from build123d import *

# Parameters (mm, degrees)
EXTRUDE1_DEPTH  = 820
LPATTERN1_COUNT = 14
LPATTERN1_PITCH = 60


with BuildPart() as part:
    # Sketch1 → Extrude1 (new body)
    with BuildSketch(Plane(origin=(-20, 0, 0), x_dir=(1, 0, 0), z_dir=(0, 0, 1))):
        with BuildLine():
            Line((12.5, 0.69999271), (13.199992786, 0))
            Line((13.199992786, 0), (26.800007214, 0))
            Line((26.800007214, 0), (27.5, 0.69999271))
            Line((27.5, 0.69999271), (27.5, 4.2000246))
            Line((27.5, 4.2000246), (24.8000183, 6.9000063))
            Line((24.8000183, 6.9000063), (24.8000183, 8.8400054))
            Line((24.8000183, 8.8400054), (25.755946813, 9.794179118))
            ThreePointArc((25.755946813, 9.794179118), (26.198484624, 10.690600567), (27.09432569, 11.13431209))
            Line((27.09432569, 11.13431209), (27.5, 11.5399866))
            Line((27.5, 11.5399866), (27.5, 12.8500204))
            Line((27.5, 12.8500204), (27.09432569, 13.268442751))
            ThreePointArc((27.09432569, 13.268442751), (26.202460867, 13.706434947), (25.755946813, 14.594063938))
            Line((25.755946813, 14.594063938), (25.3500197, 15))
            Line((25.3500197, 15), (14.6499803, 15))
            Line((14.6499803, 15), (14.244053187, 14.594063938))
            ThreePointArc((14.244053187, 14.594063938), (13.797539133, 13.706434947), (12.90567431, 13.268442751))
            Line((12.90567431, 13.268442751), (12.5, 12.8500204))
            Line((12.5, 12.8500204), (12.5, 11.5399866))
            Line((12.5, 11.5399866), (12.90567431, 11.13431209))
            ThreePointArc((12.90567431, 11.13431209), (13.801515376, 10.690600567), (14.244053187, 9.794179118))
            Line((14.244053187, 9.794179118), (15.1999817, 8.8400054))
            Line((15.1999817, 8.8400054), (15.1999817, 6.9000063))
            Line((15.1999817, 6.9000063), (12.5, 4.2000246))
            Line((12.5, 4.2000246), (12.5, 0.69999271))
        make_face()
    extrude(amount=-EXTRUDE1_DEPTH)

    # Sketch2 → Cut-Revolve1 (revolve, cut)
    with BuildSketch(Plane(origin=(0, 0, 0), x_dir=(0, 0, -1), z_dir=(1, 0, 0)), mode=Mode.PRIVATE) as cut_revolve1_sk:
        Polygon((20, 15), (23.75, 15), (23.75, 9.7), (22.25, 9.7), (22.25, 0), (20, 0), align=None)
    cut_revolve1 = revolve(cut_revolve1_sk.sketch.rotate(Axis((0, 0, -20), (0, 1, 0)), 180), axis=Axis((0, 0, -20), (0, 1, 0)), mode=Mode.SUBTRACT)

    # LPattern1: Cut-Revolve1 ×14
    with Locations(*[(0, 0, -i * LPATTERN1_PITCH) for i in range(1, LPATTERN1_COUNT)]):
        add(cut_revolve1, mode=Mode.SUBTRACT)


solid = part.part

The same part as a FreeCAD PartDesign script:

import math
import FreeCAD as App
import Part
import Sketcher
from FreeCAD import Vector


def add_polygon(sketch, points):
    """Adds a closed chain of lines whose ends are joined by coincident constraints."""
    first, n = sketch.GeometryCount, len(points)
    for a, b in zip(points, points[1:] + points[:1]):
        sketch.addGeometry(Part.LineSegment(App.Vector(*a, 0), App.Vector(*b, 0)), False)
    for i in range(n):
        sketch.addConstraint(Sketcher.Constraint("Coincident", first + i, 2, first + (i + 1) % n, 1))

doc = App.newDocument("Part")
body = doc.addObject("PartDesign::Body", "Body")

sketch1 = doc.addObject("Sketcher::SketchObject", "Sketch")
body.addObject(sketch1)
sketch1.AttachmentSupport = (doc.XY_Plane, [""])
sketch1.MapMode = "FlatFace"
sketch1.addGeometry([
    Part.LineSegment(Vector(-7.5, 0.699993, 0), Vector(-6.800007, 0, 0)),
    Part.LineSegment(Vector(-6.800007, 0, 0), Vector(6.800007, 0, 0)),
    Part.LineSegment(Vector(6.800007, 0, 0), Vector(7.5, 0.699993, 0)),
    Part.LineSegment(Vector(7.5, 0.699993, 0), Vector(7.5, 4.200025, 0)),
    Part.LineSegment(Vector(7.5, 4.200025, 0), Vector(4.800018, 6.900006, 0)),
    Part.LineSegment(Vector(4.800018, 6.900006, 0), Vector(4.800018, 8.840005, 0)),
    Part.LineSegment(Vector(4.800018, 8.840005, 0), Vector(5.755947, 9.794179, 0)),
    Part.ArcOfCircle(Part.Circle(Vector(7.302293, 9.588237, 0), Vector(0, 0, 1), 1.56), math.radians(97.661055), math.radians(172.413988)),
    Part.LineSegment(Vector(7.094326, 11.134312, 0), Vector(7.5, 11.539987, 0)),
    Part.LineSegment(Vector(7.5, 11.539987, 0), Vector(7.5, 12.85002, 0)),
    Part.LineSegment(Vector(7.5, 12.85002, 0), Vector(7.094326, 13.268443, 0)),
    Part.ArcOfCircle(Part.Circle(Vector(7.300252, 14.814791, 0), Vector(0, 0, 1), 1.56), math.radians(-171.865813), math.radians(-97.585421)),
    Part.LineSegment(Vector(5.755947, 14.594064, 0), Vector(5.35002, 15, 0)),
    Part.LineSegment(Vector(5.35002, 15, 0), Vector(-5.35002, 15, 0)),
    Part.LineSegment(Vector(-5.35002, 15, 0), Vector(-5.755947, 14.594064, 0)),
    Part.ArcOfCircle(Part.Circle(Vector(-7.300252, 14.814791, 0), Vector(0, 0, 1), 1.56), math.radians(-82.414579), math.radians(-8.134187)),
    Part.LineSegment(Vector(-7.094326, 13.268443, 0), Vector(-7.5, 12.85002, 0)),
    Part.LineSegment(Vector(-7.5, 12.85002, 0), Vector(-7.5, 11.539987, 0)),
    Part.LineSegment(Vector(-7.5, 11.539987, 0), Vector(-7.094326, 11.134312, 0)),
    Part.ArcOfCircle(Part.Circle(Vector(-7.302293, 9.588237, 0), Vector(0, 0, 1), 1.56), math.radians(7.586012), math.radians(82.338945)),
    Part.LineSegment(Vector(-5.755947, 9.794179, 0), Vector(-4.800018, 8.840005, 0)),
    Part.LineSegment(Vector(-4.800018, 8.840005, 0), Vector(-4.800018, 6.900006, 0)),
    Part.LineSegment(Vector(-4.800018, 6.900006, 0), Vector(-7.5, 4.200025, 0)),
    Part.LineSegment(Vector(-7.5, 4.200025, 0), Vector(-7.5, 0.699993, 0)),
], False)
sketch1.addConstraint([
    Sketcher.Constraint("Coincident", 0, 2, 1, 1),
    Sketcher.Constraint("Coincident", 1, 2, 2, 1),
    Sketcher.Constraint("Coincident", 2, 2, 3, 1),
    Sketcher.Constraint("Coincident", 3, 2, 4, 1),
    Sketcher.Constraint("Coincident", 4, 2, 5, 1),
    Sketcher.Constraint("Coincident", 5, 2, 6, 1),
    Sketcher.Constraint("Coincident", 6, 2, 7, 2),
    Sketcher.Constraint("Coincident", 7, 1, 8, 1),
    Sketcher.Constraint("Coincident", 8, 2, 9, 1),
    Sketcher.Constraint("Coincident", 9, 2, 10, 1),
    Sketcher.Constraint("Coincident", 10, 2, 11, 2),
    Sketcher.Constraint("Coincident", 11, 1, 12, 1),
    Sketcher.Constraint("Coincident", 12, 2, 13, 1),
    Sketcher.Constraint("Coincident", 13, 2, 14, 1),
    Sketcher.Constraint("Coincident", 14, 2, 15, 2),
    Sketcher.Constraint("Coincident", 15, 1, 16, 1),
    Sketcher.Constraint("Coincident", 16, 2, 17, 1),
    Sketcher.Constraint("Coincident", 17, 2, 18, 1),
    Sketcher.Constraint("Coincident", 18, 2, 19, 2),
    Sketcher.Constraint("Coincident", 19, 1, 20, 1),
    Sketcher.Constraint("Coincident", 20, 2, 21, 1),
    Sketcher.Constraint("Coincident", 21, 2, 22, 1),
    Sketcher.Constraint("Coincident", 22, 2, 23, 1),
    Sketcher.Constraint("Coincident", 23, 2, 0, 1),
    Sketcher.Constraint("Horizontal", 1),
    Sketcher.Constraint("Vertical", 3),
    Sketcher.Constraint("Vertical", 5),
    Sketcher.Constraint("Vertical", 9),
    Sketcher.Constraint("Horizontal", 13),
    Sketcher.Constraint("Vertical", 17),
    Sketcher.Constraint("Vertical", 21),
    Sketcher.Constraint("Vertical", 23),
    Sketcher.Constraint("Equal", 7, 11),
    Sketcher.Constraint("Equal", 11, 15),
    Sketcher.Constraint("Equal", 15, 19),
    Sketcher.Constraint("Symmetric", 0, 2, 1, 2, -1, 1),
    Sketcher.Constraint("Symmetric", 11, 3, 15, 3, -2),
    Sketcher.Constraint("Symmetric", 7, 3, 19, 3, -2),
    Sketcher.Constraint("Symmetric", 9, 2, 16, 2, -2),
    Sketcher.Constraint("Symmetric", 5, 2, 20, 2, -2),
    Sketcher.Constraint("Symmetric", 3, 2, 22, 2, -2),
    Sketcher.Constraint("Perpendicular", 0, 2),
    Sketcher.Constraint("Perpendicular", 2, 4),
    Sketcher.Constraint("Perpendicular", 4, 8),
    Sketcher.Constraint("Perpendicular", 8, 18),
    Sketcher.Constraint("Perpendicular", 18, 22),
    Sketcher.Constraint("Horizontal", 11, 1, 14, 2),
    Sketcher.Constraint("Horizontal", 10, 2, 15, 1),
    Sketcher.Constraint("Horizontal", 8, 2, 17, 2),
    Sketcher.Constraint("Horizontal", 7, 1, 18, 2),
    Sketcher.Constraint("Horizontal", 6, 2, 19, 1),
    Sketcher.Constraint("Vertical", 3, 2, 8, 2),
    Sketcher.Constraint("Vertical", 7, 1, 10, 2),
    Sketcher.Constraint("Vertical", 6, 2, 11, 1),
    Sketcher.Constraint("Equal", 12, 14),
    Sketcher.Constraint("Radius", 7, 1.56),
    Sketcher.Constraint("DistanceY", -1, 1, 12, 2, 15.0),
    Sketcher.Constraint("DistanceY", 5, 1, 5, 2, 1.939999),
    Sketcher.Constraint("DistanceX", -1, 1, 2, 2, 7.5),
    Sketcher.Constraint("DistanceX", 13, 2, 13, 1, 10.700039),
    Sketcher.Constraint("DistanceY", 3, 1, 3, 2, 3.500032),
    Sketcher.Constraint("DistanceX", 0, 2, 7, 3, 14.1023),
    Sketcher.Constraint("DistanceY", 2, 2, 11, 3, 14.114799),
    Sketcher.Constraint("Distance", 0, 0.989939),
    Sketcher.Constraint("Distance", 4, 3.818351),
    Sketcher.Constraint("Distance", 8, 0.57371),
    Sketcher.Constraint("DistanceY", 9, 1, 9, 2, 1.310034),
    Sketcher.Constraint("DistanceY", -1, 1, 6, 2, 9.794179),
    Sketcher.Constraint("DistanceY", -1, 1, 9, 2, 12.85002),
    Sketcher.Constraint("DistanceX", 11, 3, 7, 3, 0.002041),
])
pad1 = doc.addObject("PartDesign::Pad", "Pad")
body.addObject(pad1)
pad1.Profile = sketch1
pad1.Length = 820
pad1.Reversed = True

sketch2 = doc.addObject("Sketcher::SketchObject", "Sketch001")
body.addObject(sketch2)
sketch2.AttachmentSupport = (doc.YZ_Plane, [""])
sketch2.MapMode = "FlatFace"
add_polygon(sketch2, [(15, -23.75), (15, -20), (0, -20), (0, -22.25), (9.7, -22.25), (9.7, -23.75)])
sketch2.addGeometry(Part.LineSegment(Vector(0, -20, 0), Vector(15, -20, 0)), True)
sketch2.addConstraint([
    Sketcher.Constraint("Vertical", 0),
    Sketcher.Constraint("Horizontal", 1),
    Sketcher.Constraint("Vertical", 2),
    Sketcher.Constraint("Horizontal", 3),
    Sketcher.Constraint("Vertical", 4),
    Sketcher.Constraint("Horizontal", 5),
    Sketcher.Constraint("Horizontal", 6),
    Sketcher.Constraint("Coincident", 6, 1, 1, 2),
    Sketcher.Constraint("PointOnObject", 1, 2, -2),
    Sketcher.Constraint("Vertical", 5, 2, 6, 2),
    Sketcher.Constraint("DistanceX", 1, 2, 1, 1, 15.0),
    Sketcher.Constraint("DistanceX", 3, 1, 3, 2, 9.7),
    Sketcher.Constraint("DistanceY", 4, 2, 4, 1, 1.5),
    Sketcher.Constraint("DistanceY", 0, 2, -1, 1, 20.0),
    Sketcher.Constraint("DistanceY", 0, 1, 0, 2, 3.75),
])
groove = doc.addObject("PartDesign::Groove", "Groove")
body.addObject(groove)
groove.Profile = sketch2
groove.ReferenceAxis = (sketch2, ["Axis0"])
groove.Angle = 360
doc.recompute()

linearpattern = doc.addObject("PartDesign::LinearPattern", "LinearPattern")
body.addObject(linearpattern)
linearpattern.Originals = [groove]
linearpattern.Direction = (doc.Z_Axis, [""])
linearpattern.Mode = "offset"
linearpattern.Offset = 60
linearpattern.Occurrences = 14
linearpattern.Reversed = True
body.Tip = linearpattern

doc.recompute()
